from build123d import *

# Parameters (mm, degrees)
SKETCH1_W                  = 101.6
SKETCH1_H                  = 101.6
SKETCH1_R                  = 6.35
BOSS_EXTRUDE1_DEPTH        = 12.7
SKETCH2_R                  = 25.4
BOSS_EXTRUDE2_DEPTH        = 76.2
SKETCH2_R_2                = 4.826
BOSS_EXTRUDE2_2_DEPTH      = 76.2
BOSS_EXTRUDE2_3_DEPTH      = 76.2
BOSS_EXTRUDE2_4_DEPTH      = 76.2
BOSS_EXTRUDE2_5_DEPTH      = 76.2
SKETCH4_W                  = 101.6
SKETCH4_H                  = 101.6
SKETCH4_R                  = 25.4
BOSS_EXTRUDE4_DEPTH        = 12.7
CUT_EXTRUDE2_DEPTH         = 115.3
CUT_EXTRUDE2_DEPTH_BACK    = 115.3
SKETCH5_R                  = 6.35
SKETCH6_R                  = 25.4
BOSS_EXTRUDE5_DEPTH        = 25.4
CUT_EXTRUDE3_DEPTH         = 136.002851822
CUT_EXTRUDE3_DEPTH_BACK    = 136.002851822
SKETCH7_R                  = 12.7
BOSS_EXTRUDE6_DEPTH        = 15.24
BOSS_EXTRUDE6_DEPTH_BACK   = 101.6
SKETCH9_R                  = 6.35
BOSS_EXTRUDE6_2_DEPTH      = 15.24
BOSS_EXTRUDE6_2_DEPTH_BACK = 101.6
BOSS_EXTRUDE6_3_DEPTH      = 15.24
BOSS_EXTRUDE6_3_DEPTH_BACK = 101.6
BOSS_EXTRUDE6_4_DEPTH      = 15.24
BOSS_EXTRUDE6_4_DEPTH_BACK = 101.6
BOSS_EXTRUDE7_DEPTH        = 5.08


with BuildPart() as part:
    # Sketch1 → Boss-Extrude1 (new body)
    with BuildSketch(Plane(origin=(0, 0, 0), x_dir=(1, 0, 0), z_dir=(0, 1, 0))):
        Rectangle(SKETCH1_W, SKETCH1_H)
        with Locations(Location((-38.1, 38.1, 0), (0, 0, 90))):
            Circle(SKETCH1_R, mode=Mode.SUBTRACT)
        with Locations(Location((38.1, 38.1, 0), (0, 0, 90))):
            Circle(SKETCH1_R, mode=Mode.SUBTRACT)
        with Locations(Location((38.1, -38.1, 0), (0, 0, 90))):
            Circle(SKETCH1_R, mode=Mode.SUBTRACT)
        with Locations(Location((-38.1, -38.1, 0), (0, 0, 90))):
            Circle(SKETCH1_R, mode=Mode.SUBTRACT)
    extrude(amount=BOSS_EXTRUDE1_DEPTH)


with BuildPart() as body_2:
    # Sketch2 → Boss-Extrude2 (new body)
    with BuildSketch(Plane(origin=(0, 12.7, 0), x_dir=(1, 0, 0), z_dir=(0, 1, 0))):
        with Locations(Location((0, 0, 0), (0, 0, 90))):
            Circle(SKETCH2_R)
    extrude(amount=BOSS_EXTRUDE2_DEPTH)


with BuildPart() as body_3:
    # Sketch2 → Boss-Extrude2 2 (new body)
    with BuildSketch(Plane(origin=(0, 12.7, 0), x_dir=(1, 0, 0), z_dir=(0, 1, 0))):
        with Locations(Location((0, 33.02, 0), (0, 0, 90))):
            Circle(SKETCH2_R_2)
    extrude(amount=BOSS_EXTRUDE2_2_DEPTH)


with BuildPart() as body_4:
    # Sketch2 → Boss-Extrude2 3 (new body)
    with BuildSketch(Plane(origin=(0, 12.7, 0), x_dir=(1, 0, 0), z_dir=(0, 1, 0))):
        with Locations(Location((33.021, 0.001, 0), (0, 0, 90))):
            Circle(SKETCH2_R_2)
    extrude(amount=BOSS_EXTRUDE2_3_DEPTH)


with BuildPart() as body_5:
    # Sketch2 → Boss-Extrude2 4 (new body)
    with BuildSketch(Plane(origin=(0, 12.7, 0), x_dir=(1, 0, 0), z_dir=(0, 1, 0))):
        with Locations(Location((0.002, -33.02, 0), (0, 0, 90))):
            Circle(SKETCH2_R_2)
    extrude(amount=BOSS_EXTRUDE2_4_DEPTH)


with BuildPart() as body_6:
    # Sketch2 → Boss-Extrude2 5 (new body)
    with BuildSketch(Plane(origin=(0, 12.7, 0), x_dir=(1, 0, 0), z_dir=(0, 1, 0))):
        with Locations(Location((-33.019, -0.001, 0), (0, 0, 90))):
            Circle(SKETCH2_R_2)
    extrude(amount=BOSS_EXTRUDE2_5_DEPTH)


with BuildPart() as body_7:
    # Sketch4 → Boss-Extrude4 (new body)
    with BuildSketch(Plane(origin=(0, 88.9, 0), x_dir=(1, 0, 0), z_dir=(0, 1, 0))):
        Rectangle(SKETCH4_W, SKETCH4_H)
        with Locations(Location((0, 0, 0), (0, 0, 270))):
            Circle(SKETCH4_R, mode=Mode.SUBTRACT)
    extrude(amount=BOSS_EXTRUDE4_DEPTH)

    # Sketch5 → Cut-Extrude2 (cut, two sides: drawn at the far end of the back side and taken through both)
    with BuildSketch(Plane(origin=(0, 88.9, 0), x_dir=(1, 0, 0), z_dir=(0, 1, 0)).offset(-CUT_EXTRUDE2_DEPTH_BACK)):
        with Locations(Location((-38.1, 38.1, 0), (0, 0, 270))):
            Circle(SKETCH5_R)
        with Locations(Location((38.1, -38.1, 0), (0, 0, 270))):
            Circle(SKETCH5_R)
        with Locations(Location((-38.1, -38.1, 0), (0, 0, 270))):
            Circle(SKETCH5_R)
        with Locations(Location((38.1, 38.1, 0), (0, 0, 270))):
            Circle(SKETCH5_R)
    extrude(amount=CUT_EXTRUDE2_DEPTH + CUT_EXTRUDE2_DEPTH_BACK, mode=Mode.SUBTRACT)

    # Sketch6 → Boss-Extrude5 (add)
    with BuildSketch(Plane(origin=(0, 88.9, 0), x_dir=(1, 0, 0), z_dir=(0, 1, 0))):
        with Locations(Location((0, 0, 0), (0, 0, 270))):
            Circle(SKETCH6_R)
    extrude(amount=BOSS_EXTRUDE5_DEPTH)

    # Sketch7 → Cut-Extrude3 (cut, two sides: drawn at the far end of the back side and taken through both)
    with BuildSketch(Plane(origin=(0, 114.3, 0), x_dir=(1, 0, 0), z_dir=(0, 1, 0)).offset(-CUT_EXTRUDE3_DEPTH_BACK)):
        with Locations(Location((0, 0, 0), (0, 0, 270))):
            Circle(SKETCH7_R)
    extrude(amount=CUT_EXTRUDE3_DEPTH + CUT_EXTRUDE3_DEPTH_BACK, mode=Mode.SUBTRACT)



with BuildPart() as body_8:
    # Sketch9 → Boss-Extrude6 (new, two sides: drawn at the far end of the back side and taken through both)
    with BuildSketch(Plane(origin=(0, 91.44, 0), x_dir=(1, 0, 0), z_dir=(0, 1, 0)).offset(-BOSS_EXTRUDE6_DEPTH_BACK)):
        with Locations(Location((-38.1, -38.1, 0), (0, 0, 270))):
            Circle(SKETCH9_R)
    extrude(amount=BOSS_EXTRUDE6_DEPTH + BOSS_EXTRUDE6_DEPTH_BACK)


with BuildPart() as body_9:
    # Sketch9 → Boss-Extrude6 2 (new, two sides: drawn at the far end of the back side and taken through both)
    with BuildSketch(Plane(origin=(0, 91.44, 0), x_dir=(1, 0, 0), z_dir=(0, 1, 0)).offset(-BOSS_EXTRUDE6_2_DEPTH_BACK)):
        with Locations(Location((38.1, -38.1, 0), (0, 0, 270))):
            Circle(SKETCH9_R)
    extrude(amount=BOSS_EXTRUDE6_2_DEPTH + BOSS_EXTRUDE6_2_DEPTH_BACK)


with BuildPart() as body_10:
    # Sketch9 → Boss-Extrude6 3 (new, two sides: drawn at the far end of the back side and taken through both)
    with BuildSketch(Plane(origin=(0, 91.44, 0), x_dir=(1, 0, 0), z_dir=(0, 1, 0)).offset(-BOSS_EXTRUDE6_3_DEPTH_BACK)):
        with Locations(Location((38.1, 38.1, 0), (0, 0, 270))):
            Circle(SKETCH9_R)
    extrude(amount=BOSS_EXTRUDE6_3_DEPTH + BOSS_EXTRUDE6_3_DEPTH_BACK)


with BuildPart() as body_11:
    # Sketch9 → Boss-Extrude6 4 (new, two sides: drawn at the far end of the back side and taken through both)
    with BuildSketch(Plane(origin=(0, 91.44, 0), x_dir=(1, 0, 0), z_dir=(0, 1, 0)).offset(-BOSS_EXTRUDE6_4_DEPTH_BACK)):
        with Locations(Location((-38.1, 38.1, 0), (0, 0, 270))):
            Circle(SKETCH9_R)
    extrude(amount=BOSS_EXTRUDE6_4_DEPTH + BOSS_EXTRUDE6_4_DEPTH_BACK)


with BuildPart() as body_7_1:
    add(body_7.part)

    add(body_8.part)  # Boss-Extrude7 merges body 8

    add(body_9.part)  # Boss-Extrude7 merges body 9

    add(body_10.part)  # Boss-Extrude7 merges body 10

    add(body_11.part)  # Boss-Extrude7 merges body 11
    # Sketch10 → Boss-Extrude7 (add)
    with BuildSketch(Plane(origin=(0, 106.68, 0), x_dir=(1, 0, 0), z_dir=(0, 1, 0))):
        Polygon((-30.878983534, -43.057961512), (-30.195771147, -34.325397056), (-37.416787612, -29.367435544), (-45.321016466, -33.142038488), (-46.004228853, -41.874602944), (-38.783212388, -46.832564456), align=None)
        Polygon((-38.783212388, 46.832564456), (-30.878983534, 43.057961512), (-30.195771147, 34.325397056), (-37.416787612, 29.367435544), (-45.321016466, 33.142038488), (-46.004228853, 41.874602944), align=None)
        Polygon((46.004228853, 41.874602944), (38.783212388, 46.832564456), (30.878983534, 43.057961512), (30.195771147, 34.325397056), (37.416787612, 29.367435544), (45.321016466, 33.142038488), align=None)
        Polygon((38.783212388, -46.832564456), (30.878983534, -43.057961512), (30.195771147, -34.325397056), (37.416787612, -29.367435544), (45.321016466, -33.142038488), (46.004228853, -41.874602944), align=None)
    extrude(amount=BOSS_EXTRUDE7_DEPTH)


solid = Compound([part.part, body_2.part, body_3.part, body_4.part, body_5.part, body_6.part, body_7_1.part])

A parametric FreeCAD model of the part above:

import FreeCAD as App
import Part
import Sketcher

V = App.Vector
Q = App.Units.Quantity


def add_polygon(sketch, points):
    """Adds a closed chain of lines whose ends are joined by coincident constraints."""
    first, n = sketch.GeometryCount, len(points)
    for a, b in zip(points, points[1:] + points[:1]):
        sketch.addGeometry(Part.LineSegment(App.Vector(*a, 0), App.Vector(*b, 0)), False)
    for i in range(n):
        sketch.addConstraint(Sketcher.Constraint("Coincident", first + i, 2, first + (i + 1) % n, 1))

doc = App.newDocument("Part")
params = doc.addObject("Spreadsheet::Sheet", "Params")
for row, (alias, value) in enumerate([
    ("sketch1_diameter", "0.5 in"),
    ("sketch1_width", "4 in"),
    ("pad1_length", "0.5 in"),
    ("sketch2_diameter", "2 in"),
    ("pad2_length", "3 in"),
    ("sketch3_diameter", "0.38 in"),
    ("pad3_length", "3 in"),
    ("sketch4_diameter", "0.38 in"),
    ("pad4_length", "3 in"),
    ("sketch5_diameter", "0.38 in"),
    ("pad5_length", "3 in"),
    ("sketch6_diameter", "0.38 in"),
    ("pad6_length", "3 in"),
    ("sketch7_diameter", "2 in"),
    ("sketch7_width", "4 in"),
    ("pad7_length", "0.5 in"),
    ("sketch8_diameter", "0.5 in"),
    ("sketch9_diameter", "2 in"),
    ("pad8_length", "1 in"),
    ("sketch10_diameter", "1 in"),
    ("sketch11_diameter", "0.5 in"),
    ("pad9_length", "0.6 in"),
    ("pad9_length2", "4 in"),
    ("sketch12_diameter", "0.5 in"),
    ("pad10_length", "0.6 in"),
    ("pad10_length2", "4 in"),
    ("sketch13_diameter", "0.5 in"),
    ("pad11_length", "0.6 in"),
    ("pad11_length2", "4 in"),
    ("sketch14_diameter", "0.5 in"),
    ("pad12_length", "0.6 in"),
    ("pad12_length2", "4 in"),
    ("pad13_length", "0.2 in"),
], start=1):
    params.set(f"A{row}", alias)
    params.set(f"B{row}", "=" + value)
    params.setAlias(f"B{row}", alias)

body = doc.addObject("PartDesign::Body", "Body")

sketch1 = body.newObject("Sketcher::SketchObject", "Sketch")
sketch1.AttachmentSupport = (doc.getObject("XZ_Plane"), [""])
sketch1.MapMode = "FlatFace"
add_polygon(sketch1, [(-50.8, -50.8), (-50.8, 50.8), (50.8, 50.8), (50.8, -50.8)])
sketch1.addGeometry(Part.Circle(V(-38.1, 38.1, 0), V(0, 0, 1), 6.35), False)
sketch1.addGeometry(Part.Circle(V(38.1, 38.1, 0), V(0, 0, 1), 6.35), False)
sketch1.addGeometry(Part.Circle(V(-38.1, -38.1, 0), V(0, 0, 1), 6.35), False)
sketch1.addGeometry(Part.Circle(V(38.1, -38.1, 0), V(0, 0, 1), 6.35), False)
sketch1.addConstraint([
    Sketcher.Constraint("Vertical", 0),
    Sketcher.Constraint("Horizontal", 1),
    Sketcher.Constraint("Vertical", 2),
    Sketcher.Constraint("Horizontal", 3),
    Sketcher.Constraint("Equal", 4, 5),
    Sketcher.Constraint("Equal", 5, 6),
    Sketcher.Constraint("Equal", 6, 7),
    Sketcher.Constraint("Symmetric", 5, 3, 6, 3, -1, 1),
    Sketcher.Constraint("Symmetric", 4, 3, 7, 3, -1, 1),
    Sketcher.Constraint("Symmetric", 0, 2, 2, 2, -1, 1),
    Sketcher.Constraint("Symmetric", 4, 3, 5, 3, -2),
    Sketcher.Constraint("Equal", 3, 0),
    Sketcher.Constraint("Diameter", 4, Q("0.5 in")),
    Sketcher.Constraint("DistanceX", 1, 1, 1, 2, Q("4 in")),
    Sketcher.Constraint("DistanceX", 4, 3, 5, 3, Q("3 in")),
    Sketcher.Constraint("DistanceY", 6, 3, 4, 3, Q("3 in")),
])
sketch1.setExpression("Constraints[16]", "Params.sketch1_diameter")
sketch1.setExpression("Constraints[17]", "Params.sketch1_width")
pad1 = body.newObject("PartDesign::Pad", "Pad")
pad1.Profile = sketch1
pad1.setExpression("Length", "Params.pad1_length")
pad1.Reversed = True
body2 = doc.addObject("PartDesign::Body", "Body001")

sketch2 = body2.newObject("Sketcher::SketchObject", "Sketch001")
sketch2.AttachmentSupport = (doc.getObject("XZ_Plane001"), [""])
sketch2.MapMode = "FlatFace"
sketch2.AttachmentOffset = App.Placement(V(0, 0, -0.5 * 25.4), App.Rotation())
sketch2.addGeometry(Part.Circle(V(0, 0, 0), V(0, 0, 1), 25.4), False)
sketch2.addConstraint([
    Sketcher.Constraint("Coincident", 0, 3, -1, 1),
    Sketcher.Constraint("Diameter", 0, Q("2 in")),
])
sketch2.setExpression("Constraints[1]", "Params.sketch2_diameter")
pad2 = body2.newObject("PartDesign::Pad", "Pad001")
pad2.Profile = sketch2
pad2.setExpression("Length", "Params.pad2_length")
pad2.Reversed = True
body3 = doc.addObject("PartDesign::Body", "Body002")

sketch3 = body3.newObject("Sketcher::SketchObject", "Sketch002")
sketch3.AttachmentSupport = (doc.getObject("XZ_Plane002"), [""])
sketch3.MapMode = "FlatFace"
sketch3.AttachmentOffset = App.Placement(V(0, 0, -0.5 * 25.4), App.Rotation())
sketch3.addGeometry(Part.Circle(V(0, -33.02, 0), V(0, 0, 1), 4.826), False)
sketch3.addConstraint([
    Sketcher.Constraint("PointOnObject", 0, 3, -2),
    Sketcher.Constraint("Diameter", 0, Q("0.38 in")),
    Sketcher.Constraint("DistanceY", 0, 3, -1, 1, Q("1.3 in")),
])
sketch3.setExpression("Constraints[1]", "Params.sketch3_diameter")
pad3 = body3.newObject("PartDesign::Pad", "Pad002")
pad3.Profile = sketch3
pad3.setExpression("Length", "Params.pad3_length")
pad3.Reversed = True
body4 = doc.addObject("PartDesign::Body", "Body003")

sketch4 = body4.newObject("Sketcher::SketchObject", "Sketch003")
sketch4.AttachmentSupport = (doc.getObject("XZ_Plane003"), [""])
sketch4.MapMode = "FlatFace"
sketch4.AttachmentOffset = App.Placement(V(0, 0, -0.5 * 25.4), App.Rotation())
sketch4.addGeometry(Part.Circle(V(33.021, -0.001, 0), V(0, 0, 1), 4.826), False)
sketch4.addConstraint([
    Sketcher.Constraint("Diameter", 0, Q("0.38 in")),
    Sketcher.Constraint("DistanceX", -1, 1, 0, 3, 33.021),
    Sketcher.Constraint("DistanceY", 0, 3, -1, 1, 0.001),
])
sketch4.setExpression("Constraints[0]", "Params.sketch4_diameter")
pad4 = body4.newObject("PartDesign::Pad", "Pad003")
pad4.Profile = sketch4
pad4.setExpression("Length", "Params.pad4_length")
pad4.Reversed = True
body5 = doc.addObject("PartDesign::Body", "Body004")

sketch5 = body5.newObject("Sketcher::SketchObject", "Sketch004")
sketch5.AttachmentSupport = (doc.getObject("XZ_Plane004"), [""])
sketch5.MapMode = "FlatFace"
sketch5.AttachmentOffset = App.Placement(V(0, 0, -0.5 * 25.4), App.Rotation())
sketch5.addGeometry(Part.Circle(V(0.002, 33.02, 0), V(0, 0, 1), 4.826), False)
sketch5.addConstraint([
    Sketcher.Constraint("Diameter", 0, Q("0.38 in")),
    Sketcher.Constraint("DistanceY", -1, 1, 0, 3, Q("1.3 in")),
    Sketcher.Constraint("DistanceX", -1, 1, 0, 3, 0.002),
])
sketch5.setExpression("Constraints[0]", "Params.sketch5_diameter")
pad5 = body5.newObject("PartDesign::Pad", "Pad004")
pad5.Profile = sketch5
pad5.setExpression("Length", "Params.pad5_length")
pad5.Reversed = True
body6 = doc.addObject("PartDesign::Body", "Body005")

sketch6 = body6.newObject("Sketcher::SketchObject", "Sketch005")
sketch6.AttachmentSupport = (doc.getObject("XZ_Plane005"), [""])
sketch6.MapMode = "FlatFace"
sketch6.AttachmentOffset = App.Placement(V(0, 0, -0.5 * 25.4), App.Rotation())
sketch6.addGeometry(Part.Circle(V(-33.019, 0.001, 0), V(0, 0, 1), 4.826), False)
sketch6.addConstraint([
    Sketcher.Constraint("Diameter", 0, Q("0.38 in")),
    Sketcher.Constraint("DistanceX", 0, 3, -1, 1, 33.019),
    Sketcher.Constraint("DistanceY", -1, 1, 0, 3, 0.001),
])
sketch6.setExpression("Constraints[0]", "Params.sketch6_diameter")
pad6 = body6.newObject("PartDesign::Pad", "Pad005")
pad6.Profile = sketch6
pad6.setExpression("Length", "Params.pad6_length")
pad6.Reversed = True
body7 = doc.addObject("PartDesign::Body", "Body006")

sketch7 = body7.newObject("Sketcher::SketchObject", "Sketch006")
sketch7.AttachmentSupport = (doc.getObject("XZ_Plane006"), [""])
sketch7.MapMode = "FlatFace"
sketch7.AttachmentOffset = App.Placement(V(0, 0, -3.5 * 25.4), App.Rotation())
add_polygon(sketch7, [(-50.8, -50.8), (-50.8, 50.8), (50.8, 50.8), (50.8, -50.8)])
sketch7.addGeometry(Part.Circle(V(0, 0, 0), V(0, 0, 1), 25.4), False)
sketch7.addConstraint([
    Sketcher.Constraint("Vertical", 0),
    Sketcher.Constraint("Horizontal", 1),
    Sketcher.Constraint("Vertical", 2),
    Sketcher.Constraint("Horizontal", 3),
    Sketcher.Constraint("Coincident", 4, 3, -1, 1),
    Sketcher.Constraint("Symmetric", 0, 2, 2, 2, -1, 1),
    Sketcher.Constraint("Equal", 3, 0),
    Sketcher.Constraint("Diameter", 4, Q("2 in")),
    Sketcher.Constraint("DistanceX", 1, 1, 1, 2, Q("4 in")),
])
sketch7.setExpression("Constraints[11]", "Params.sketch7_diameter")
sketch7.setExpression("Constraints[12]", "Params.sketch7_width")
pad7 = body7.newObject("PartDesign::Pad", "Pad006")
pad7.Profile = sketch7
pad7.setExpression("Length", "Params.pad7_length")
pad7.Reversed = True

sketch8 = body7.newObject("Sketcher::SketchObject", "Sketch007")
sketch8.AttachmentSupport = (doc.getObject("XZ_Plane006"), [""])
sketch8.MapMode = "FlatFace"
sketch8.AttachmentOffset = App.Placement(V(0, 0, -3.5 * 25.4), App.Rotation())
sketch8.addGeometry([
    Part.Circle(V(-38.1, -38.1, 0), V(0, 0, 1), 6.35),
    Part.Circle(V(38.1, 38.1, 0), V(0, 0, 1), 6.35),
    Part.Circle(V(-38.1, 38.1, 0), V(0, 0, 1), 6.35),
    Part.Circle(V(38.1, -38.1, 0), V(0, 0, 1), 6.35),
], False)
sketch8.addConstraint([
    Sketcher.Constraint("Equal", 0, 1),
    Sketcher.Constraint("Equal", 1, 2),
    Sketcher.Constraint("Equal", 2, 3),
    Sketcher.Constraint("Symmetric", 0, 3, 1, 3, -1, 1),
    Sketcher.Constraint("Symmetric", 2, 3, 3, 3, -1, 1),
    Sketcher.Constraint("Symmetric", 1, 3, 2, 3, -2),
    Sketcher.Constraint("Diameter", 0, Q("0.5 in")),
    Sketcher.Constraint("DistanceX", 0, 3, 1, 3, Q("3 in")),
    Sketcher.Constraint("DistanceY", 0, 3, 1, 3, Q("3 in")),
])
sketch8.setExpression("Constraints[6]", "Params.sketch8_diameter")
pocket1 = body7.newObject("PartDesign::Pocket", "Pocket")
pocket1.Profile = sketch8
pocket1.Type = "ThroughAll"
pocket1.Midplane = True

sketch9 = body7.newObject("Sketcher::SketchObject", "Sketch008")
sketch9.AttachmentSupport = (doc.getObject("XZ_Plane006"), [""])
sketch9.MapMode = "FlatFace"
sketch9.AttachmentOffset = App.Placement(V(0, 0, -3.5 * 25.4), App.Rotation())
sketch9.addGeometry(Part.Circle(V(0, 0, 0), V(0, 0, 1), 25.4), False)
sketch9.addConstraint([
    Sketcher.Constraint("Coincident", 0, 3, -1, 1),
    Sketcher.Constraint("Diameter", 0, Q("2 in")),
])
sketch9.setExpression("Constraints[1]", "Params.sketch9_diameter")
pad8 = body7.newObject("PartDesign::Pad", "Pad007")
pad8.Profile = sketch9
pad8.setExpression("Length", "Params.pad8_length")
pad8.Reversed = True

sketch10 = body7.newObject("Sketcher::SketchObject", "Sketch009")
sketch10.AttachmentSupport = (doc.getObject("XZ_Plane006"), [""])
sketch10.MapMode = "FlatFace"
sketch10.AttachmentOffset = App.Placement(V(0, 0, -4.5 * 25.4), App.Rotation())
sketch10.addGeometry(Part.Circle(V(0, 0, 0), V(0, 0, 1), 12.7), False)
sketch10.addConstraint([
    Sketcher.Constraint("Coincident", 0, 3, -1, 1),
    Sketcher.Constraint("Diameter", 0, Q("1 in")),
])
sketch10.setExpression("Constraints[1]", "Params.sketch10_diameter")
pocket2 = body7.newObject("PartDesign::Pocket", "Pocket001")
pocket2.Profile = sketch10
pocket2.Type = "ThroughAll"
pocket2.Midplane = True
body8 = doc.addObject("PartDesign::Body", "Body007")

sketch11 = body8.newObject("Sketcher::SketchObject", "Sketch010")
sketch11.AttachmentSupport = (doc.getObject("XZ_Plane007"), [""])
sketch11.MapMode = "FlatFace"
sketch11.AttachmentOffset = App.Placement(V(0, 0, -3.6 * 25.4), App.Rotation())
sketch11.addGeometry(Part.Circle(V(-38.1, 38.1, 0), V(0, 0, 1), 6.35), False)
sketch11.addConstraint([
    Sketcher.Constraint("Diameter", 0, Q("0.5 in")),
    Sketcher.Constraint("DistanceX", 0, 3, -1, 1, Q("1.5 in")),
    Sketcher.Constraint("DistanceY", -1, 1, 0, 3, Q("1.5 in")),
])
sketch11.setExpression("Constraints[0]", "Params.sketch11_diameter")
pad9 = body8.newObject("PartDesign::Pad", "Pad008")
pad9.Profile = sketch11
pad9.Type = "TwoLengths"
pad9.setExpression("Length", "Params.pad9_length")
pad9.setExpression("Length2", "Params.pad9_length2")
pad9.Reversed = True
body9 = doc.addObject("PartDesign::Body", "Body008")

sketch12 = body9.newObject("Sketcher::SketchObject", "Sketch011")
sketch12.AttachmentSupport = (doc.getObject("XZ_Plane008"), [""])
sketch12.MapMode = "FlatFace"
sketch12.AttachmentOffset = App.Placement(V(0, 0, -3.6 * 25.4), App.Rotation())
sketch12.addGeometry(Part.Circle(V(38.1, 38.1, 0), V(0, 0, 1), 6.35), False)
sketch12.addConstraint([
    Sketcher.Constraint("Diameter", 0, Q("0.5 in")),
    Sketcher.Constraint("DistanceX", -1, 1, 0, 3, Q("1.5 in")),
    Sketcher.Constraint("DistanceY", -1, 1, 0, 3, Q("1.5 in")),
])
sketch12.setExpression("Constraints[0]", "Params.sketch12_diameter")
pad10 = body9.newObject("PartDesign::Pad", "Pad009")
pad10.Profile = sketch12
pad10.Type = "TwoLengths"
pad10.setExpression("Length", "Params.pad10_length")
pad10.setExpression("Length2", "Params.pad10_length2")
pad10.Reversed = True
body10 = doc.addObject("PartDesign::Body", "Body009")

sketch13 = body10.newObject("Sketcher::SketchObject", "Sketch012")
sketch13.AttachmentSupport = (doc.getObject("XZ_Plane009"), [""])
sketch13.MapMode = "FlatFace"
sketch13.AttachmentOffset = App.Placement(V(0, 0, -3.6 * 25.4), App.Rotation())
sketch13.addGeometry(Part.Circle(V(38.1, -38.1, 0), V(0, 0, 1), 6.35), False)
sketch13.addConstraint([
    Sketcher.Constraint("Diameter", 0, Q("0.5 in")),
    Sketcher.Constraint("DistanceX", -1, 1, 0, 3, Q("1.5 in")),
    Sketcher.Constraint("DistanceY", 0, 3, -1, 1, Q("1.5 in")),
])
sketch13.setExpression("Constraints[0]", "Params.sketch13_diameter")
pad11 = body10.newObject("PartDesign::Pad", "Pad010")
pad11.Profile = sketch13
pad11.Type = "TwoLengths"
pad11.setExpression("Length", "Params.pad11_length")
pad11.setExpression("Length2", "Params.pad11_length2")
pad11.Reversed = True
body11 = doc.addObject("PartDesign::Body", "Body010")

sketch14 = body11.newObject("Sketcher::SketchObject", "Sketch013")
sketch14.AttachmentSupport = (doc.getObject("XZ_Plane010"), [""])
sketch14.MapMode = "FlatFace"
sketch14.AttachmentOffset = App.Placement(V(0, 0, -3.6 * 25.4), App.Rotation())
sketch14.addGeometry(Part.Circle(V(-38.1, -38.1, 0), V(0, 0, 1), 6.35), False)
sketch14.addConstraint([
    Sketcher.Constraint("Diameter", 0, Q("0.5 in")),
    Sketcher.Constraint("DistanceX", 0, 3, -1, 1, Q("1.5 in")),
    Sketcher.Constraint("DistanceY", 0, 3, -1, 1, Q("1.5 in")),
])
sketch14.setExpression("Constraints[0]", "Params.sketch14_diameter")
pad12 = body11.newObject("PartDesign::Pad", "Pad011")
pad12.Profile = sketch14
pad12.Type = "TwoLengths"
pad12.setExpression("Length", "Params.pad12_length")
pad12.setExpression("Length2", "Params.pad12_length2")
pad12.Reversed = True
doc.recompute()

boolean = body7.newObject("PartDesign::Boolean", "Boolean")
boolean.Type = "Fuse"
boolean.addObjects([body8])
doc.recompute()

boolean2 = body7.newObject("PartDesign::Boolean", "Boolean001")
boolean2.Type = "Fuse"
boolean2.addObjects([body9])
doc.recompute()

boolean3 = body7.newObject("PartDesign::Boolean", "Boolean002")
boolean3.Type = "Fuse"
boolean3.addObjects([body10])
doc.recompute()

boolean4 = body7.newObject("PartDesign::Boolean", "Boolean003")
boolean4.Type = "Fuse"
boolean4.addObjects([body11])

sketch15 = body7.newObject("Sketcher::SketchObject", "Sketch014")
sketch15.AttachmentSupport = (doc.getObject("XZ_Plane006"), [""])
sketch15.MapMode = "FlatFace"
sketch15.AttachmentOffset = App.Placement(V(0, 0, -4.2 * 25.4), App.Rotation())
add_polygon(sketch15, [(-30.878984, 43.057962), (-30.195771, 34.325397), (-37.416788, 29.367436), (-45.321016, 33.142038), (-46.004229, 41.874603), (-38.783212, 46.832564)])
add_polygon(sketch15, [(-30.878984, -43.057962), (-38.783212, -46.832564), (-46.004229, -41.874603), (-45.321016, -33.142038), (-37.416788, -29.367436), (-30.195771, -34.325397)])
add_polygon(sketch15, [(46.004229, -41.874603), (38.783212, -46.832564), (30.878984, -43.057962), (30.195771, -34.325397), (37.416788, -29.367436), (45.321016, -33.142038)])
add_polygon(sketch15, [(30.878984, 43.057962), (38.783212, 46.832564), (46.004229, 41.874603), (45.321016, 33.142038), (37.416788, 29.367436), (30.195771, 34.325397)])
sketch15.addConstraint([
    Sketcher.Constraint("Symmetric", 4, 2, 12, 2, -1, 1),
    Sketcher.Constraint("Symmetric", 5, 2, 13, 2, -1, 1),
    Sketcher.Constraint("Symmetric", 0, 2, 14, 2, -1, 1),
    Sketcher.Constraint("Symmetric", 1, 2, 15, 2, -1, 1),
    Sketcher.Constraint("Symmetric", 2, 2, 16, 2, -1, 1),
    Sketcher.Constraint("Symmetric", 3, 2, 17, 2, -1, 1),
    Sketcher.Constraint("Symmetric", 6, 2, 18, 2, -1, 1),
    Sketcher.Constraint("Symmetric", 7, 2, 19, 2, -1, 1),
    Sketcher.Constraint("Symmetric", 8, 2, 20, 2, -1, 1),
    Sketcher.Constraint("Symmetric", 9, 2, 21, 2, -1, 1),
    Sketcher.Constraint("Symmetric", 10, 2, 22, 2, -1, 1),
    Sketcher.Constraint("Symmetric", 11, 2, 23, 2, -1, 1),
    Sketcher.Constraint("Symmetric", 6, 2, 12, 2, -2),
    Sketcher.Constraint("Symmetric", 11, 2, 13, 2, -2),
    Sketcher.Constraint("Symmetric", 10, 2, 14, 2, -2),
    Sketcher.Constraint("Symmetric", 9, 2, 15, 2, -2),
    Sketcher.Constraint("Symmetric", 8, 2, 16, 2, -2),
    Sketcher.Constraint("Symmetric", 7, 2, 17, 2, -2),
    Sketcher.Constraint("Parallel", 0, 3),
    Sketcher.Constraint("Parallel", 1, 4),
    Sketcher.Constraint("Parallel", 2, 5),
    Sketcher.Constraint("Equal", 0, 1),
    Sketcher.Constraint("Equal", 1, 2),
    Sketcher.Constraint("Equal", 2, 3),
    Sketcher.Constraint("DistanceY", 6, 2, 1, 2, Q("3 in")),
    Sketcher.Constraint("DistanceX", 9, 2, 12, 2, Q("3 in")),
    Sketcher.Constraint("Distance", 0, 8.75925),
    Sketcher.Constraint("DistanceX", 0, 2, -1, 1, 30.195771),
    Sketcher.Constraint("DistanceY", -1, 1, 2, 2, 33.142038),
    Sketcher.Constraint("DistanceY", 1, 2, 0, 2, 4.957962),
])
pad13 = body7.newObject("PartDesign::Pad", "Pad012")
pad13.Profile = sketch15
pad13.setExpression("Length", "Params.pad13_length")
pad13.Reversed = True

doc.recompute()
